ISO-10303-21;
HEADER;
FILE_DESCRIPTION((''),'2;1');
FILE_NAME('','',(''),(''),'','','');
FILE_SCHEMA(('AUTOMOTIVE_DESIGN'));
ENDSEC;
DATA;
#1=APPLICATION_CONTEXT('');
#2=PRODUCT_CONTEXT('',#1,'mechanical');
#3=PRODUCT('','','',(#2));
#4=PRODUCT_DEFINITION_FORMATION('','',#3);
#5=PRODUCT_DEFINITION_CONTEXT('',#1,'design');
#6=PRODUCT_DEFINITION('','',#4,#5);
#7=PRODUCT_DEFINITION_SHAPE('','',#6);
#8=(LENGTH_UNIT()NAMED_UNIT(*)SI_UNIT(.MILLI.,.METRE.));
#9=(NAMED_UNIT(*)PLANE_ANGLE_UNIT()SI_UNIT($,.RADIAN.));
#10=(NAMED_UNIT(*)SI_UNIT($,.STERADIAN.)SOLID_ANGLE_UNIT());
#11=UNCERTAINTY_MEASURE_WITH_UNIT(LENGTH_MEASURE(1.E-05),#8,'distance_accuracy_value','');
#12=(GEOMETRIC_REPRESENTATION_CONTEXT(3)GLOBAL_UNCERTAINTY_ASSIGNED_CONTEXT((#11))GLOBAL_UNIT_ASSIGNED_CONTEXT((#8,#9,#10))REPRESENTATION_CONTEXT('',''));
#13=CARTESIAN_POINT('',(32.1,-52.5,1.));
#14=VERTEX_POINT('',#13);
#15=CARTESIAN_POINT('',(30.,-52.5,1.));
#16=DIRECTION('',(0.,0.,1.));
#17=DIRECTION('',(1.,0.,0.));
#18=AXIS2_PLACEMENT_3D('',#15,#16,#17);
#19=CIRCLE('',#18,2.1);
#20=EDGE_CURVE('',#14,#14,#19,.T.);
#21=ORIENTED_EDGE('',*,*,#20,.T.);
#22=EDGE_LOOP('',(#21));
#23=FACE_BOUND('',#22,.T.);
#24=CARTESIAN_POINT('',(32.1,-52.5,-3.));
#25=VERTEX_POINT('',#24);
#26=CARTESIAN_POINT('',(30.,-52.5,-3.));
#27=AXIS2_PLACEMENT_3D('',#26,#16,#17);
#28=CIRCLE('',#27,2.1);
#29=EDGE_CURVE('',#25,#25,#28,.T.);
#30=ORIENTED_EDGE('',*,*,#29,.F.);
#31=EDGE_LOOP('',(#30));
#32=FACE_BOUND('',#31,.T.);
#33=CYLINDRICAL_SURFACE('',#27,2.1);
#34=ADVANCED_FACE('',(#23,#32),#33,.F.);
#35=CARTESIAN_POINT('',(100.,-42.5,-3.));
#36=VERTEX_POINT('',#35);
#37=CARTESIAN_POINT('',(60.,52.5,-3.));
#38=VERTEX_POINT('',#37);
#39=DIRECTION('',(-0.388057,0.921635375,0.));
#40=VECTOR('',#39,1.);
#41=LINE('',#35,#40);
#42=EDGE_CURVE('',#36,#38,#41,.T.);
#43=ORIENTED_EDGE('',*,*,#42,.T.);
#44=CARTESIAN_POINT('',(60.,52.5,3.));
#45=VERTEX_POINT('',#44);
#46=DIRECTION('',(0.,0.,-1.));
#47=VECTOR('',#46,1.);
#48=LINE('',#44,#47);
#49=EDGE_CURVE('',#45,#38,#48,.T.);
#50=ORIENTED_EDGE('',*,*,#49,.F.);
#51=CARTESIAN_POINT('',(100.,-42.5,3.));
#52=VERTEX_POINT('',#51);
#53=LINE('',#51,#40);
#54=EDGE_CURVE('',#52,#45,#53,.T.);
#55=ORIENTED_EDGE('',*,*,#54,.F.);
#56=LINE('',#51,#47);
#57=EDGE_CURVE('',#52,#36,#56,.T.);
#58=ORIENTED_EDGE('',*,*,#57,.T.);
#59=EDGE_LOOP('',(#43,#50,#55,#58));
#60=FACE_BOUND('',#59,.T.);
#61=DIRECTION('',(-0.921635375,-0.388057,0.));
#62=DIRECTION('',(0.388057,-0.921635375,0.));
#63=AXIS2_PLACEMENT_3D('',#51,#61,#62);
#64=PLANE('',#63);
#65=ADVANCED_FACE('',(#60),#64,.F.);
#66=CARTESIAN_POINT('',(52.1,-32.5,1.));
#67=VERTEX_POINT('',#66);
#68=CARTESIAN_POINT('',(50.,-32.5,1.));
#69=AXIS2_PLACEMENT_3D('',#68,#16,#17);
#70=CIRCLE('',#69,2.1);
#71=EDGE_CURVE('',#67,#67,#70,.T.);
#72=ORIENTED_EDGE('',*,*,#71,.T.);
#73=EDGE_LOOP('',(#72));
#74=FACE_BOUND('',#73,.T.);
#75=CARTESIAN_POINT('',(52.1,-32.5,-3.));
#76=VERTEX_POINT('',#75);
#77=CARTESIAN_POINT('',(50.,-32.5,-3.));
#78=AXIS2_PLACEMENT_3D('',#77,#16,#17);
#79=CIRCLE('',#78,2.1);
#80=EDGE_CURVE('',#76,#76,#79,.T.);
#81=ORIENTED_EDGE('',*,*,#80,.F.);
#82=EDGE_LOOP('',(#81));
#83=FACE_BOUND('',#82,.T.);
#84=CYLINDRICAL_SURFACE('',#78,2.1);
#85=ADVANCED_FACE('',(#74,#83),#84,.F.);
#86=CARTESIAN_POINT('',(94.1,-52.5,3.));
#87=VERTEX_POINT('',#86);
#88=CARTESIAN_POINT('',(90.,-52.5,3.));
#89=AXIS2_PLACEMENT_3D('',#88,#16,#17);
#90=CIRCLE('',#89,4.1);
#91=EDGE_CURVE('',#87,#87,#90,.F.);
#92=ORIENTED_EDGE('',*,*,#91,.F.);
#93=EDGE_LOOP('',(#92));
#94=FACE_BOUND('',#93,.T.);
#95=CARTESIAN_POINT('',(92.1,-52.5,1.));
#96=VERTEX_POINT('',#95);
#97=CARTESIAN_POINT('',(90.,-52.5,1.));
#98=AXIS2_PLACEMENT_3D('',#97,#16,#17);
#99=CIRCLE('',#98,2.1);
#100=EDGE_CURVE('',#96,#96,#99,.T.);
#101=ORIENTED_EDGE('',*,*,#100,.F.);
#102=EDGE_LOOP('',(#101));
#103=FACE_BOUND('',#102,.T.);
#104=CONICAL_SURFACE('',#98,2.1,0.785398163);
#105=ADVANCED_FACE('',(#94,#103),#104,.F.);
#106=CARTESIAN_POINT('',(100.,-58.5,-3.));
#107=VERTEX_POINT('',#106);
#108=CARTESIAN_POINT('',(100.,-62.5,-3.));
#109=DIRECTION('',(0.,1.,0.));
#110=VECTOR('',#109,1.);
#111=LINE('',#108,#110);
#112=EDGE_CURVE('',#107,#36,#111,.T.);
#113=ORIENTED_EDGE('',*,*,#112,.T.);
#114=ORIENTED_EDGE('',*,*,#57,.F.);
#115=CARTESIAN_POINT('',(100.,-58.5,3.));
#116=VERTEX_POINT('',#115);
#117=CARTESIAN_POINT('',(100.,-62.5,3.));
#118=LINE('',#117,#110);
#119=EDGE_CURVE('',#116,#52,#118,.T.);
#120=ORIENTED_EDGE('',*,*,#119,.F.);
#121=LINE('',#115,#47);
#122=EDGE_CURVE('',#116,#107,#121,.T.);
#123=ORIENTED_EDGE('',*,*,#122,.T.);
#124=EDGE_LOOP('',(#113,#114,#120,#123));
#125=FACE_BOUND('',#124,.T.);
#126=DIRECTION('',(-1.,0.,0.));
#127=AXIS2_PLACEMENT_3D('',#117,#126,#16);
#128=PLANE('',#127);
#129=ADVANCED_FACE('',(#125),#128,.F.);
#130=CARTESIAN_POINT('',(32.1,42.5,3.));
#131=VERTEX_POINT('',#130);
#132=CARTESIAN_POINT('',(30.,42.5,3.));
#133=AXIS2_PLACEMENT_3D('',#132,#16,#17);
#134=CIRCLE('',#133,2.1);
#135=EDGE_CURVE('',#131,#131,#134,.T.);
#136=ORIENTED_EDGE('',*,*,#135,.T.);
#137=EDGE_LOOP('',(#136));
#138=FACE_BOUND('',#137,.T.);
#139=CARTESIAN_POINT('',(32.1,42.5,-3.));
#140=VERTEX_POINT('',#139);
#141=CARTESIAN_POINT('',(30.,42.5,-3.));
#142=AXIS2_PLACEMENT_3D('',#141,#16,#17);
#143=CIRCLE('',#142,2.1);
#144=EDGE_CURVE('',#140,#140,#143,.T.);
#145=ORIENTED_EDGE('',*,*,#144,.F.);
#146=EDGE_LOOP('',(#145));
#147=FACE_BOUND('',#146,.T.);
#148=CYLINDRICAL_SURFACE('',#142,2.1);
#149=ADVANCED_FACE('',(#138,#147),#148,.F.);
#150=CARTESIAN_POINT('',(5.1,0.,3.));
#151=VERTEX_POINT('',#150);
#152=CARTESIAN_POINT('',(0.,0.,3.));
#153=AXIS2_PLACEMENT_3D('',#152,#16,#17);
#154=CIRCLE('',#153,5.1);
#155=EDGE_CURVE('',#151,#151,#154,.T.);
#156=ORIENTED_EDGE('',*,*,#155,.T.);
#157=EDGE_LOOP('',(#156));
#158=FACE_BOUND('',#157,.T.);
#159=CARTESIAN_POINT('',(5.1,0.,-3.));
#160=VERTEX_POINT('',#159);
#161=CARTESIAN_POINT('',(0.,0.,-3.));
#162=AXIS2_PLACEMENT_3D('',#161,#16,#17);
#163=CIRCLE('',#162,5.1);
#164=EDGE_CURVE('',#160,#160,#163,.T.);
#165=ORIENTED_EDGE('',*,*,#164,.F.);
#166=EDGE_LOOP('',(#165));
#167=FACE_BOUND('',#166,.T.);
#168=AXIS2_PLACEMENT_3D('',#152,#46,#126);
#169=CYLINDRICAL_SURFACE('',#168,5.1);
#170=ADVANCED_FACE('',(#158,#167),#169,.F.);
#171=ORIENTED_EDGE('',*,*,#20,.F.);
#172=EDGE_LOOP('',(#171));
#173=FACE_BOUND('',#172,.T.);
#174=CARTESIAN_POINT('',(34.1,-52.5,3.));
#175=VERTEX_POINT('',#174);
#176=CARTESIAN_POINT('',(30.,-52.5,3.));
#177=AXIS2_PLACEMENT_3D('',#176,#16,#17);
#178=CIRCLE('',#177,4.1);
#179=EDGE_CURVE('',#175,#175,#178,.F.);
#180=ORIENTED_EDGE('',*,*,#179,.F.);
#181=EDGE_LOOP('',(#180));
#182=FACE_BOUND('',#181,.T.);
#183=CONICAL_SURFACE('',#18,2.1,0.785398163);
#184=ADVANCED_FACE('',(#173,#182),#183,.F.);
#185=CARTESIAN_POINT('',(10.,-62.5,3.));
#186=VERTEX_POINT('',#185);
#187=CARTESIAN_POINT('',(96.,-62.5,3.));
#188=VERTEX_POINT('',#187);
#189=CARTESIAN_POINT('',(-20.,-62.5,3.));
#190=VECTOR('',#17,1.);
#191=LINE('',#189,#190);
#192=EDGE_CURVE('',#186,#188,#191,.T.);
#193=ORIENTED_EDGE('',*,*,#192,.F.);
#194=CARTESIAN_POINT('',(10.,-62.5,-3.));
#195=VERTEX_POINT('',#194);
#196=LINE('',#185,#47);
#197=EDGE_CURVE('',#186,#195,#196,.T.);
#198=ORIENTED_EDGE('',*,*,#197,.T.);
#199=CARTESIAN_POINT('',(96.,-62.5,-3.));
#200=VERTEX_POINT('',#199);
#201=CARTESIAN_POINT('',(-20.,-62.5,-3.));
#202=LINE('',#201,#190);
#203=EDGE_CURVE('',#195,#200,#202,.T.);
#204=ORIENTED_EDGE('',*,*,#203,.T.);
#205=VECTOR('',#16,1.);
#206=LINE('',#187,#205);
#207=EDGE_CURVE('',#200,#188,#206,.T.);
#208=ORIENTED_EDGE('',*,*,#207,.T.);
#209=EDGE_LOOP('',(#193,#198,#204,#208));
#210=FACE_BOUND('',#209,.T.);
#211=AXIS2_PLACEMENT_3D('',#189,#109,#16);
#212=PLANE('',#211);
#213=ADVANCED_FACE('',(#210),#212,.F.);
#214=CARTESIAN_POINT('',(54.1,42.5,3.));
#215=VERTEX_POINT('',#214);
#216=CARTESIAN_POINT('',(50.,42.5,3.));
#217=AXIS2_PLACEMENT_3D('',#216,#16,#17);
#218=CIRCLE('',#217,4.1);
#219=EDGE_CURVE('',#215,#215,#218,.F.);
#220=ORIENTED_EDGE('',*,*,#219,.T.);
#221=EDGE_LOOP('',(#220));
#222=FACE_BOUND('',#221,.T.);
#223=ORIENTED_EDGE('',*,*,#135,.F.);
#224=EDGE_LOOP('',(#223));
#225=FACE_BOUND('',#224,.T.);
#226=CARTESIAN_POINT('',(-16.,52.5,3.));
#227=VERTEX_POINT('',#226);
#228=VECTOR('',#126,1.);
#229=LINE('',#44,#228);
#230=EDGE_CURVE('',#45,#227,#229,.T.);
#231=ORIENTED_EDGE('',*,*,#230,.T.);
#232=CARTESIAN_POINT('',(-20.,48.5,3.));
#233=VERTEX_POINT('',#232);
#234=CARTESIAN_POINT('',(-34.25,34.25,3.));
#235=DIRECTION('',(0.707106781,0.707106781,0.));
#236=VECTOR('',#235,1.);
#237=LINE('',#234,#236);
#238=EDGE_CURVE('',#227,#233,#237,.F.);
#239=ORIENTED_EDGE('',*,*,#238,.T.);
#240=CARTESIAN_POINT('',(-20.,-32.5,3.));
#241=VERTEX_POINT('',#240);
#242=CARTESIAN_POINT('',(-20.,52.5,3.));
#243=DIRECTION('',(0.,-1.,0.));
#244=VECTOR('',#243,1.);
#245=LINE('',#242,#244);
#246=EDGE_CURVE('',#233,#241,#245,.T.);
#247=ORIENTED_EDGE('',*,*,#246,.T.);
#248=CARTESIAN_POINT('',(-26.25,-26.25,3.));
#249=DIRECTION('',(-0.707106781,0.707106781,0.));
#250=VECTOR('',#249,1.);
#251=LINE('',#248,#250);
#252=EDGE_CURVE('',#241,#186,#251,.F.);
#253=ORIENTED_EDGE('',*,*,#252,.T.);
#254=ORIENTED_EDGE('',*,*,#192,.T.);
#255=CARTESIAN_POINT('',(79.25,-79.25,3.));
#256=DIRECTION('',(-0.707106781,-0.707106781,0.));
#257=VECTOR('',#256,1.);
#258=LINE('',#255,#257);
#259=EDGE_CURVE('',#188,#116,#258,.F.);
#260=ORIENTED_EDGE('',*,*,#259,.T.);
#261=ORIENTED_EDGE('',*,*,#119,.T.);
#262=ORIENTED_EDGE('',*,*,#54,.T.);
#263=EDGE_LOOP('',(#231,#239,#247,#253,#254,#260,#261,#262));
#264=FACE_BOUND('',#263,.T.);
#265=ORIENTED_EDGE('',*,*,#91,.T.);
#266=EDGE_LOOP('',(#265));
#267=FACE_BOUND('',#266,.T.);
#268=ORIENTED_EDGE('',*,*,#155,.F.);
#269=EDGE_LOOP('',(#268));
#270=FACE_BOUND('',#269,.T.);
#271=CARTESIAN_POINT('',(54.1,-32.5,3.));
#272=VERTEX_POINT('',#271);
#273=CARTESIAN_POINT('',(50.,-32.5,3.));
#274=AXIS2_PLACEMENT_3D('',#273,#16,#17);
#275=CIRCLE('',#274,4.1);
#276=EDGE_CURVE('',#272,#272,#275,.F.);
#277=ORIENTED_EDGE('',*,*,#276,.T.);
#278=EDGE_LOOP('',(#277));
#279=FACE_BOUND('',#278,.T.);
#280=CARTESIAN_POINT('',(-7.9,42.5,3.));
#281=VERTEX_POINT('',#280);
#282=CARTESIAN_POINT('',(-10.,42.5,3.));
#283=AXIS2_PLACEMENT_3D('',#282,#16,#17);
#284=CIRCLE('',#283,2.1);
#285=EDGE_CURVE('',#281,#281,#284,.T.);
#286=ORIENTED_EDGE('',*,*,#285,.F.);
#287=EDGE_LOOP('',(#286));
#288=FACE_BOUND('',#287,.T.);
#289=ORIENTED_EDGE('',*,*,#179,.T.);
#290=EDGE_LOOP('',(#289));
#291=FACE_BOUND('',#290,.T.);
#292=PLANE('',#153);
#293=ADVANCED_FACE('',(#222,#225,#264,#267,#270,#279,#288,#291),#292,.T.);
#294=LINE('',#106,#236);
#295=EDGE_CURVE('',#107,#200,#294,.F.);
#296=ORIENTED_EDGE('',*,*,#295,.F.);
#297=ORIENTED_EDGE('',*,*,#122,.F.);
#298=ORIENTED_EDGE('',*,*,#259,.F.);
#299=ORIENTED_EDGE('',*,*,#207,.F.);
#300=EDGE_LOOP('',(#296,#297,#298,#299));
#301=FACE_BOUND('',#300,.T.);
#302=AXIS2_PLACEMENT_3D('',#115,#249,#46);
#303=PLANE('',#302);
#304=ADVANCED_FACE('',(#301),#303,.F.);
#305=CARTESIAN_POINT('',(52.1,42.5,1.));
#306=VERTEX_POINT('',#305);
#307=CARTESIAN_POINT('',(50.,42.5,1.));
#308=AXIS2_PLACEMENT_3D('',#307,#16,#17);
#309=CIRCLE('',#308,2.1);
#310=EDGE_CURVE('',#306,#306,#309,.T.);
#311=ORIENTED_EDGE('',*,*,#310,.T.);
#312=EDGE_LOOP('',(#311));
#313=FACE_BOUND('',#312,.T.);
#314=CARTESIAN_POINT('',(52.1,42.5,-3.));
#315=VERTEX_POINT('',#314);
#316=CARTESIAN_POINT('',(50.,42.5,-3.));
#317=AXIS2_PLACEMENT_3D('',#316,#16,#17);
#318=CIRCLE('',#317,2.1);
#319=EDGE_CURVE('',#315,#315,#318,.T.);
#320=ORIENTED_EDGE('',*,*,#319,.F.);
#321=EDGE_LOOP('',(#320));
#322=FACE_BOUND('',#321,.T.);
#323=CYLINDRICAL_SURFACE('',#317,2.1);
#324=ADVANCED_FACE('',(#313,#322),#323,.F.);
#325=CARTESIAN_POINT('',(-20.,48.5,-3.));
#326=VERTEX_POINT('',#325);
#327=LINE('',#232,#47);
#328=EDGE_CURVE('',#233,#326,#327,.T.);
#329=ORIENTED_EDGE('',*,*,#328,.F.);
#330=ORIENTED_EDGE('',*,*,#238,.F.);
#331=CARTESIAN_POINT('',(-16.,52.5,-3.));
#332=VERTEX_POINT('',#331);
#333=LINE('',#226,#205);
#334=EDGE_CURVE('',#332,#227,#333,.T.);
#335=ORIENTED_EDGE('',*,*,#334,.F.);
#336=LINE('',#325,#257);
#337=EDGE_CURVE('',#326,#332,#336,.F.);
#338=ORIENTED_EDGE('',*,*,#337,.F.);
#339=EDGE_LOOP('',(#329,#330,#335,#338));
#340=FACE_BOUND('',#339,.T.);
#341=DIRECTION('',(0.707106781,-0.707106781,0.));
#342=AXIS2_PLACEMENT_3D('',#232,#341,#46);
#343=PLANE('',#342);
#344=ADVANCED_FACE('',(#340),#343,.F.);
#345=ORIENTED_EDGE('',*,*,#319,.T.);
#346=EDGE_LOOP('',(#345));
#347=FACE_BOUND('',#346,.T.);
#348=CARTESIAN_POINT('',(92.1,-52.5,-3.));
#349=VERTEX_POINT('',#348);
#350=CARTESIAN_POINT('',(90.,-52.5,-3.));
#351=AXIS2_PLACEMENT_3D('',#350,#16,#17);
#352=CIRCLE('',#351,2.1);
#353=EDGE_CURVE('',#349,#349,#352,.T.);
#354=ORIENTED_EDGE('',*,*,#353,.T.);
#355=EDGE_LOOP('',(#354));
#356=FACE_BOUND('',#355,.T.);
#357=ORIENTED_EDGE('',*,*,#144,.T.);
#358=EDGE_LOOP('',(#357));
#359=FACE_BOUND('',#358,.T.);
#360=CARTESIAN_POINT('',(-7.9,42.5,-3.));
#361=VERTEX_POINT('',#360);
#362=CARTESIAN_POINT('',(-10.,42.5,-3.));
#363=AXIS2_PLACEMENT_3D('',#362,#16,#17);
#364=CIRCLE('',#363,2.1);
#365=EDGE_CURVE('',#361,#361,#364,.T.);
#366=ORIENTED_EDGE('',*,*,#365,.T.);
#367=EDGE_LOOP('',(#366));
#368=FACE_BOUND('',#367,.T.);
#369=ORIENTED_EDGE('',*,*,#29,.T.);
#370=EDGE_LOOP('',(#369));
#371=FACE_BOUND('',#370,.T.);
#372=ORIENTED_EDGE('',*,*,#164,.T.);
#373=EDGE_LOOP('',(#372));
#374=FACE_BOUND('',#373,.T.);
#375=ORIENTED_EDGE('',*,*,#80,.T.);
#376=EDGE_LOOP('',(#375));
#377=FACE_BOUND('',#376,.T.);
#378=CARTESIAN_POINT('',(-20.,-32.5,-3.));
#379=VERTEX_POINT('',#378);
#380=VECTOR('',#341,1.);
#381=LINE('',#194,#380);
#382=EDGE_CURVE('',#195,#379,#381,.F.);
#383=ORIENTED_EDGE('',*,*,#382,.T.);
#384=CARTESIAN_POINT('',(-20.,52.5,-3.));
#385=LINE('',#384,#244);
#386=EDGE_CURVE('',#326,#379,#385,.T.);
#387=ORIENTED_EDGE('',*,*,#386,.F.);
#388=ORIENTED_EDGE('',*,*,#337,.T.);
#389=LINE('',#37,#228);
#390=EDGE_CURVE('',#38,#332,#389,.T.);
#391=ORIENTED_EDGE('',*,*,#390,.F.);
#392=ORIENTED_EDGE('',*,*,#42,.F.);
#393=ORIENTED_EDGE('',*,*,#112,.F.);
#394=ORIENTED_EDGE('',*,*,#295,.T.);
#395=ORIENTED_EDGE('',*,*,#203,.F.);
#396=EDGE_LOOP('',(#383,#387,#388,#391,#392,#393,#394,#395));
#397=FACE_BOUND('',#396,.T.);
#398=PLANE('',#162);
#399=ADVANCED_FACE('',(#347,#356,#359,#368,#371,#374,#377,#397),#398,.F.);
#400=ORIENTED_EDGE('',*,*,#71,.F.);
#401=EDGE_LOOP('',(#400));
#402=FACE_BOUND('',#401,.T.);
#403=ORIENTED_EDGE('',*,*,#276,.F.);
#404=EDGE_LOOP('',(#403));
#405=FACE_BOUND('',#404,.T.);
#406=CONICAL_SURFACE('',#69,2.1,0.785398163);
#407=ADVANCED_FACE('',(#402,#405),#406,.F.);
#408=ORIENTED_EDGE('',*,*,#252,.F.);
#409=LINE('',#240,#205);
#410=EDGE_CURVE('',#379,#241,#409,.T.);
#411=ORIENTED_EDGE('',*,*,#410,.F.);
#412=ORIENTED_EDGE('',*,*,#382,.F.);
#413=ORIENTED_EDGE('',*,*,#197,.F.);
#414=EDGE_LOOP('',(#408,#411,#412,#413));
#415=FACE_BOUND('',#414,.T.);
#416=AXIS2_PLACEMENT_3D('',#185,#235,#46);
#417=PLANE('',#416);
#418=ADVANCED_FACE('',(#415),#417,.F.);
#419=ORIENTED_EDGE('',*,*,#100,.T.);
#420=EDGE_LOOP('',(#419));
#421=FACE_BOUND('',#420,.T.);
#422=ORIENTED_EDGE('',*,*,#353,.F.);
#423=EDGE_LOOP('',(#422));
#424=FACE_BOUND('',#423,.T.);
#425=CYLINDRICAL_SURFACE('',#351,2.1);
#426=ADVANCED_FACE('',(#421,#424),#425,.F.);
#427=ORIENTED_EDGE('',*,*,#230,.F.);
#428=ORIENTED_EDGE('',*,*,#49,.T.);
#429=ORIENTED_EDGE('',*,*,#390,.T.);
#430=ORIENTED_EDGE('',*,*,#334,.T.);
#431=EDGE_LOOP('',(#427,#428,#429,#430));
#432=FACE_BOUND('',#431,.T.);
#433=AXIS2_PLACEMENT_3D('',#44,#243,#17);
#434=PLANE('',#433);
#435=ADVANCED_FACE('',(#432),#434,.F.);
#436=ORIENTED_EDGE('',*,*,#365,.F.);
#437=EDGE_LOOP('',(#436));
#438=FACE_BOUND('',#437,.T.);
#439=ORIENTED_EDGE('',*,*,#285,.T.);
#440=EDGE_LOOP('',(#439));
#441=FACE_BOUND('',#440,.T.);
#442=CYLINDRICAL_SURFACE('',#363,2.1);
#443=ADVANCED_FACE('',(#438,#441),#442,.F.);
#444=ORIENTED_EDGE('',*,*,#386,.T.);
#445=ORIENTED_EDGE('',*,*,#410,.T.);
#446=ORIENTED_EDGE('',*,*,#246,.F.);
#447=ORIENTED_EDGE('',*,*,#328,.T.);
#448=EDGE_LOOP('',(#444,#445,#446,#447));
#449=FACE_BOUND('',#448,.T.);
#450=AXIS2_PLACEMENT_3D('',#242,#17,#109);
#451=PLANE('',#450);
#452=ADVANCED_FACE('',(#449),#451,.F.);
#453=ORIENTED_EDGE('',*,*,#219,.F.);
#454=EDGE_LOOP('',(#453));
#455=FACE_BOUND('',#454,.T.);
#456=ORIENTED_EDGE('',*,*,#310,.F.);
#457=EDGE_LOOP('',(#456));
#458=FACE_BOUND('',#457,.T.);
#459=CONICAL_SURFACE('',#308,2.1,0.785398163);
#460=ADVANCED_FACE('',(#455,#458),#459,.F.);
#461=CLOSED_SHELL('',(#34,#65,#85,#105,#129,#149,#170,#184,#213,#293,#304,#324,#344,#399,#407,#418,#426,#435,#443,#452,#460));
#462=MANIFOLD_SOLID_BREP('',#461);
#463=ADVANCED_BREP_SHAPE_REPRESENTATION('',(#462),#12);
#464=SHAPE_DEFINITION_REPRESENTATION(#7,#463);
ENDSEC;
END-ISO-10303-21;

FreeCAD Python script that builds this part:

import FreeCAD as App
import Part
import Sketcher

V = App.Vector
Q = App.Units.Quantity


def edges_at(feature, points):
    """Names of the edges that pass closest to the given points."""
    edges = feature.Shape.Edges
    near = lambda p: min(range(len(edges)), key=lambda i: edges[i].distToShape(Part.Vertex(*p))[0])
    return sorted({f"Edge{near(p) + 1}" for p in points})


def add_polygon(sketch, points):
    """Adds a closed chain of lines whose ends are joined by coincident constraints."""
    first, n = sketch.GeometryCount, len(points)
    for a, b in zip(points, points[1:] + points[:1]):
        sketch.addGeometry(Part.LineSegment(App.Vector(*a, 0), App.Vector(*b, 0)), False)
    for i in range(n):
        sketch.addConstraint(Sketcher.Constraint("Coincident", first + i, 2, first + (i + 1) % n, 1))

doc = App.newDocument("Part")
body = doc.addObject("PartDesign::Body", "Body")

# Sketch on XY plane
sketch1 = body.newObject("Sketcher::SketchObject", "Sketch")
sketch1.AttachmentSupport = (doc.getObject("XY_Plane"), [""])
sketch1.MapMode = "FlatFace"
add_polygon(sketch1, [(-20, 52), (-20, -62), (100, -62), (100, -42), (60, 52)])  # lines 0-4
sketch1.addGeometry(Part.Circle(V(0, 0, 0), V(0, 0, 1), 5), False)  # 5
sketch1.addConstraint(Sketcher.Constraint("Vertical", 0))
sketch1.addConstraint(Sketcher.Constraint("Horizontal", 1))
sketch1.addConstraint(Sketcher.Constraint("Vertical", 2))
sketch1.addConstraint(Sketcher.Constraint("Horizontal", 4))
sketch1.addConstraint(Sketcher.Constraint("Coincident", 5, 3, -1, 1))
sketch1.addConstraint(Sketcher.Constraint("Diameter", 5, Q("10.2 mm")))
sketch1.addConstraint(Sketcher.Constraint("DistanceX", 1, 1, 1, 2, Q("120 mm")))
sketch1.addConstraint(Sketcher.Constraint("DistanceX", 4, 2, 4, 1, Q("80 mm")))
sketch1.addConstraint(Sketcher.Constraint("DistanceY", 0, 2, 0, 1, Q("115 mm")))
sketch1.addConstraint(Sketcher.Constraint("DistanceY", 2, 1, 2, 2, Q("20 mm")))
sketch1.addConstraint(Sketcher.Constraint("DistanceX", 0, 2, -1, 1, Q("20 mm")))
sketch1.addConstraint(Sketcher.Constraint("DistanceY", 0, 2, -1, 1, Q("62.5 mm")))
pad1 = body.newObject("PartDesign::Pad", "Pad")
pad1.Profile = sketch1
pad1.Length = 6
pad1.Midplane = True

# Sketch on XY plane
sketch2 = body.newObject("Sketcher::SketchObject", "Sketch001")
sketch2.AttachmentSupport = (doc.getObject("XY_Plane"), [""])
sketch2.MapMode = "FlatFace"
sketch2.AttachmentOffset = App.Placement(V(0, 0, 3), App.Rotation())
sketch2.addGeometry(Part.Circle(V(-10, 42.5, 0), V(0, 0, 1), 2.1), False)
sketch2.addGeometry(Part.Circle(V(30, 42.5, 0), V(0, 0, 1), 2.1), False)
sketch2.addGeometry(Part.Circle(V(50, 42.5, 0), V(0, 0, 1), 2.1), False)
sketch2.addGeometry(Part.Circle(V(50, -32.5, 0), V(0, 0, 1), 2.1), False)
sketch2.addGeometry(Part.Circle(V(30, -52.5, 0), V(0, 0, 1), 2.1), False)
sketch2.addGeometry(Part.Circle(V(90, -52.5, 0), V(0, 0, 1), 2.1), False)
sketch2.addConstraint(Sketcher.Constraint("Equal", 0, 1))
sketch2.addConstraint(Sketcher.Constraint("Equal", 1, 2))
sketch2.addConstraint(Sketcher.Constraint("Equal", 2, 3))
sketch2.addConstraint(Sketcher.Constraint("Equal", 3, 4))
sketch2.addConstraint(Sketcher.Constraint("Equal", 4, 5))
sketch2.addConstraint(Sketcher.Constraint("Horizontal", 0, 3, 1, 3))
sketch2.addConstraint(Sketcher.Constraint("Horizontal", 1, 3, 2, 3))
sketch2.addConstraint(Sketcher.Constraint("Horizontal", 4, 3, 5, 3))
sketch2.addConstraint(Sketcher.Constraint("Vertical", 2, 3, 3, 3))
sketch2.addConstraint(Sketcher.Constraint("Vertical", 1, 3, 4, 3))
sketch2.addConstraint(Sketcher.Constraint("Diameter", 0, Q("4.2 mm")))
sketch2.addConstraint(Sketcher.Constraint("DistanceX", 0, 3, -1, 1, Q("10 mm")))
sketch2.addConstraint(Sketcher.Constraint("DistanceX", -1, 1, 1, 3, Q("30 mm")))
sketch2.addConstraint(Sketcher.Constraint("DistanceX", -1, 1, 2, 3, Q("50 mm")))
sketch2.addConstraint(Sketcher.Constraint("DistanceX", -1, 1, 5, 3, Q("90 mm")))
sketch2.addConstraint(Sketcher.Constraint("DistanceY", 3, 3, 2, 3, Q("75 mm")))
sketch2.addConstraint(Sketcher.Constraint("DistanceY", 4, 3, 3, 3, Q("20 mm")))
sketch2.addConstraint(Sketcher.Constraint("DistanceY", -1, 1, 0, 3, Q("42.5 mm")))
pocket1 = body.newObject("PartDesign::Pocket", "Pocket")
pocket1.Profile = sketch2
pocket1.Type = "ThroughAll"
doc.recompute()

chamfer = body.newObject("PartDesign::Chamfer", "Chamfer")
chamfer.Base = (pocket1, edges_at(pocket1, [(-20, -62.5, 0)]))
chamfer.Size = 30
doc.recompute()

chamfer2 = body.newObject("PartDesign::Chamfer", "Chamfer001")
chamfer2.Base = (chamfer, edges_at(chamfer, [(100, -62.5, 0), (-20, 52.5, 0)]))
chamfer2.Size = 4
doc.recompute()

chamfer3 = body.newObject("PartDesign::Chamfer", "Chamfer002")
chamfer3.Base = (chamfer2, edges_at(chamfer2, [
    (47.9, 42.5, 3),
    (47.9, -32.5, 3),
    (27.9, -52.5, 3),
    (87.9, -52.5, 3),
]))
chamfer3.Size = 2

doc.recompute()
